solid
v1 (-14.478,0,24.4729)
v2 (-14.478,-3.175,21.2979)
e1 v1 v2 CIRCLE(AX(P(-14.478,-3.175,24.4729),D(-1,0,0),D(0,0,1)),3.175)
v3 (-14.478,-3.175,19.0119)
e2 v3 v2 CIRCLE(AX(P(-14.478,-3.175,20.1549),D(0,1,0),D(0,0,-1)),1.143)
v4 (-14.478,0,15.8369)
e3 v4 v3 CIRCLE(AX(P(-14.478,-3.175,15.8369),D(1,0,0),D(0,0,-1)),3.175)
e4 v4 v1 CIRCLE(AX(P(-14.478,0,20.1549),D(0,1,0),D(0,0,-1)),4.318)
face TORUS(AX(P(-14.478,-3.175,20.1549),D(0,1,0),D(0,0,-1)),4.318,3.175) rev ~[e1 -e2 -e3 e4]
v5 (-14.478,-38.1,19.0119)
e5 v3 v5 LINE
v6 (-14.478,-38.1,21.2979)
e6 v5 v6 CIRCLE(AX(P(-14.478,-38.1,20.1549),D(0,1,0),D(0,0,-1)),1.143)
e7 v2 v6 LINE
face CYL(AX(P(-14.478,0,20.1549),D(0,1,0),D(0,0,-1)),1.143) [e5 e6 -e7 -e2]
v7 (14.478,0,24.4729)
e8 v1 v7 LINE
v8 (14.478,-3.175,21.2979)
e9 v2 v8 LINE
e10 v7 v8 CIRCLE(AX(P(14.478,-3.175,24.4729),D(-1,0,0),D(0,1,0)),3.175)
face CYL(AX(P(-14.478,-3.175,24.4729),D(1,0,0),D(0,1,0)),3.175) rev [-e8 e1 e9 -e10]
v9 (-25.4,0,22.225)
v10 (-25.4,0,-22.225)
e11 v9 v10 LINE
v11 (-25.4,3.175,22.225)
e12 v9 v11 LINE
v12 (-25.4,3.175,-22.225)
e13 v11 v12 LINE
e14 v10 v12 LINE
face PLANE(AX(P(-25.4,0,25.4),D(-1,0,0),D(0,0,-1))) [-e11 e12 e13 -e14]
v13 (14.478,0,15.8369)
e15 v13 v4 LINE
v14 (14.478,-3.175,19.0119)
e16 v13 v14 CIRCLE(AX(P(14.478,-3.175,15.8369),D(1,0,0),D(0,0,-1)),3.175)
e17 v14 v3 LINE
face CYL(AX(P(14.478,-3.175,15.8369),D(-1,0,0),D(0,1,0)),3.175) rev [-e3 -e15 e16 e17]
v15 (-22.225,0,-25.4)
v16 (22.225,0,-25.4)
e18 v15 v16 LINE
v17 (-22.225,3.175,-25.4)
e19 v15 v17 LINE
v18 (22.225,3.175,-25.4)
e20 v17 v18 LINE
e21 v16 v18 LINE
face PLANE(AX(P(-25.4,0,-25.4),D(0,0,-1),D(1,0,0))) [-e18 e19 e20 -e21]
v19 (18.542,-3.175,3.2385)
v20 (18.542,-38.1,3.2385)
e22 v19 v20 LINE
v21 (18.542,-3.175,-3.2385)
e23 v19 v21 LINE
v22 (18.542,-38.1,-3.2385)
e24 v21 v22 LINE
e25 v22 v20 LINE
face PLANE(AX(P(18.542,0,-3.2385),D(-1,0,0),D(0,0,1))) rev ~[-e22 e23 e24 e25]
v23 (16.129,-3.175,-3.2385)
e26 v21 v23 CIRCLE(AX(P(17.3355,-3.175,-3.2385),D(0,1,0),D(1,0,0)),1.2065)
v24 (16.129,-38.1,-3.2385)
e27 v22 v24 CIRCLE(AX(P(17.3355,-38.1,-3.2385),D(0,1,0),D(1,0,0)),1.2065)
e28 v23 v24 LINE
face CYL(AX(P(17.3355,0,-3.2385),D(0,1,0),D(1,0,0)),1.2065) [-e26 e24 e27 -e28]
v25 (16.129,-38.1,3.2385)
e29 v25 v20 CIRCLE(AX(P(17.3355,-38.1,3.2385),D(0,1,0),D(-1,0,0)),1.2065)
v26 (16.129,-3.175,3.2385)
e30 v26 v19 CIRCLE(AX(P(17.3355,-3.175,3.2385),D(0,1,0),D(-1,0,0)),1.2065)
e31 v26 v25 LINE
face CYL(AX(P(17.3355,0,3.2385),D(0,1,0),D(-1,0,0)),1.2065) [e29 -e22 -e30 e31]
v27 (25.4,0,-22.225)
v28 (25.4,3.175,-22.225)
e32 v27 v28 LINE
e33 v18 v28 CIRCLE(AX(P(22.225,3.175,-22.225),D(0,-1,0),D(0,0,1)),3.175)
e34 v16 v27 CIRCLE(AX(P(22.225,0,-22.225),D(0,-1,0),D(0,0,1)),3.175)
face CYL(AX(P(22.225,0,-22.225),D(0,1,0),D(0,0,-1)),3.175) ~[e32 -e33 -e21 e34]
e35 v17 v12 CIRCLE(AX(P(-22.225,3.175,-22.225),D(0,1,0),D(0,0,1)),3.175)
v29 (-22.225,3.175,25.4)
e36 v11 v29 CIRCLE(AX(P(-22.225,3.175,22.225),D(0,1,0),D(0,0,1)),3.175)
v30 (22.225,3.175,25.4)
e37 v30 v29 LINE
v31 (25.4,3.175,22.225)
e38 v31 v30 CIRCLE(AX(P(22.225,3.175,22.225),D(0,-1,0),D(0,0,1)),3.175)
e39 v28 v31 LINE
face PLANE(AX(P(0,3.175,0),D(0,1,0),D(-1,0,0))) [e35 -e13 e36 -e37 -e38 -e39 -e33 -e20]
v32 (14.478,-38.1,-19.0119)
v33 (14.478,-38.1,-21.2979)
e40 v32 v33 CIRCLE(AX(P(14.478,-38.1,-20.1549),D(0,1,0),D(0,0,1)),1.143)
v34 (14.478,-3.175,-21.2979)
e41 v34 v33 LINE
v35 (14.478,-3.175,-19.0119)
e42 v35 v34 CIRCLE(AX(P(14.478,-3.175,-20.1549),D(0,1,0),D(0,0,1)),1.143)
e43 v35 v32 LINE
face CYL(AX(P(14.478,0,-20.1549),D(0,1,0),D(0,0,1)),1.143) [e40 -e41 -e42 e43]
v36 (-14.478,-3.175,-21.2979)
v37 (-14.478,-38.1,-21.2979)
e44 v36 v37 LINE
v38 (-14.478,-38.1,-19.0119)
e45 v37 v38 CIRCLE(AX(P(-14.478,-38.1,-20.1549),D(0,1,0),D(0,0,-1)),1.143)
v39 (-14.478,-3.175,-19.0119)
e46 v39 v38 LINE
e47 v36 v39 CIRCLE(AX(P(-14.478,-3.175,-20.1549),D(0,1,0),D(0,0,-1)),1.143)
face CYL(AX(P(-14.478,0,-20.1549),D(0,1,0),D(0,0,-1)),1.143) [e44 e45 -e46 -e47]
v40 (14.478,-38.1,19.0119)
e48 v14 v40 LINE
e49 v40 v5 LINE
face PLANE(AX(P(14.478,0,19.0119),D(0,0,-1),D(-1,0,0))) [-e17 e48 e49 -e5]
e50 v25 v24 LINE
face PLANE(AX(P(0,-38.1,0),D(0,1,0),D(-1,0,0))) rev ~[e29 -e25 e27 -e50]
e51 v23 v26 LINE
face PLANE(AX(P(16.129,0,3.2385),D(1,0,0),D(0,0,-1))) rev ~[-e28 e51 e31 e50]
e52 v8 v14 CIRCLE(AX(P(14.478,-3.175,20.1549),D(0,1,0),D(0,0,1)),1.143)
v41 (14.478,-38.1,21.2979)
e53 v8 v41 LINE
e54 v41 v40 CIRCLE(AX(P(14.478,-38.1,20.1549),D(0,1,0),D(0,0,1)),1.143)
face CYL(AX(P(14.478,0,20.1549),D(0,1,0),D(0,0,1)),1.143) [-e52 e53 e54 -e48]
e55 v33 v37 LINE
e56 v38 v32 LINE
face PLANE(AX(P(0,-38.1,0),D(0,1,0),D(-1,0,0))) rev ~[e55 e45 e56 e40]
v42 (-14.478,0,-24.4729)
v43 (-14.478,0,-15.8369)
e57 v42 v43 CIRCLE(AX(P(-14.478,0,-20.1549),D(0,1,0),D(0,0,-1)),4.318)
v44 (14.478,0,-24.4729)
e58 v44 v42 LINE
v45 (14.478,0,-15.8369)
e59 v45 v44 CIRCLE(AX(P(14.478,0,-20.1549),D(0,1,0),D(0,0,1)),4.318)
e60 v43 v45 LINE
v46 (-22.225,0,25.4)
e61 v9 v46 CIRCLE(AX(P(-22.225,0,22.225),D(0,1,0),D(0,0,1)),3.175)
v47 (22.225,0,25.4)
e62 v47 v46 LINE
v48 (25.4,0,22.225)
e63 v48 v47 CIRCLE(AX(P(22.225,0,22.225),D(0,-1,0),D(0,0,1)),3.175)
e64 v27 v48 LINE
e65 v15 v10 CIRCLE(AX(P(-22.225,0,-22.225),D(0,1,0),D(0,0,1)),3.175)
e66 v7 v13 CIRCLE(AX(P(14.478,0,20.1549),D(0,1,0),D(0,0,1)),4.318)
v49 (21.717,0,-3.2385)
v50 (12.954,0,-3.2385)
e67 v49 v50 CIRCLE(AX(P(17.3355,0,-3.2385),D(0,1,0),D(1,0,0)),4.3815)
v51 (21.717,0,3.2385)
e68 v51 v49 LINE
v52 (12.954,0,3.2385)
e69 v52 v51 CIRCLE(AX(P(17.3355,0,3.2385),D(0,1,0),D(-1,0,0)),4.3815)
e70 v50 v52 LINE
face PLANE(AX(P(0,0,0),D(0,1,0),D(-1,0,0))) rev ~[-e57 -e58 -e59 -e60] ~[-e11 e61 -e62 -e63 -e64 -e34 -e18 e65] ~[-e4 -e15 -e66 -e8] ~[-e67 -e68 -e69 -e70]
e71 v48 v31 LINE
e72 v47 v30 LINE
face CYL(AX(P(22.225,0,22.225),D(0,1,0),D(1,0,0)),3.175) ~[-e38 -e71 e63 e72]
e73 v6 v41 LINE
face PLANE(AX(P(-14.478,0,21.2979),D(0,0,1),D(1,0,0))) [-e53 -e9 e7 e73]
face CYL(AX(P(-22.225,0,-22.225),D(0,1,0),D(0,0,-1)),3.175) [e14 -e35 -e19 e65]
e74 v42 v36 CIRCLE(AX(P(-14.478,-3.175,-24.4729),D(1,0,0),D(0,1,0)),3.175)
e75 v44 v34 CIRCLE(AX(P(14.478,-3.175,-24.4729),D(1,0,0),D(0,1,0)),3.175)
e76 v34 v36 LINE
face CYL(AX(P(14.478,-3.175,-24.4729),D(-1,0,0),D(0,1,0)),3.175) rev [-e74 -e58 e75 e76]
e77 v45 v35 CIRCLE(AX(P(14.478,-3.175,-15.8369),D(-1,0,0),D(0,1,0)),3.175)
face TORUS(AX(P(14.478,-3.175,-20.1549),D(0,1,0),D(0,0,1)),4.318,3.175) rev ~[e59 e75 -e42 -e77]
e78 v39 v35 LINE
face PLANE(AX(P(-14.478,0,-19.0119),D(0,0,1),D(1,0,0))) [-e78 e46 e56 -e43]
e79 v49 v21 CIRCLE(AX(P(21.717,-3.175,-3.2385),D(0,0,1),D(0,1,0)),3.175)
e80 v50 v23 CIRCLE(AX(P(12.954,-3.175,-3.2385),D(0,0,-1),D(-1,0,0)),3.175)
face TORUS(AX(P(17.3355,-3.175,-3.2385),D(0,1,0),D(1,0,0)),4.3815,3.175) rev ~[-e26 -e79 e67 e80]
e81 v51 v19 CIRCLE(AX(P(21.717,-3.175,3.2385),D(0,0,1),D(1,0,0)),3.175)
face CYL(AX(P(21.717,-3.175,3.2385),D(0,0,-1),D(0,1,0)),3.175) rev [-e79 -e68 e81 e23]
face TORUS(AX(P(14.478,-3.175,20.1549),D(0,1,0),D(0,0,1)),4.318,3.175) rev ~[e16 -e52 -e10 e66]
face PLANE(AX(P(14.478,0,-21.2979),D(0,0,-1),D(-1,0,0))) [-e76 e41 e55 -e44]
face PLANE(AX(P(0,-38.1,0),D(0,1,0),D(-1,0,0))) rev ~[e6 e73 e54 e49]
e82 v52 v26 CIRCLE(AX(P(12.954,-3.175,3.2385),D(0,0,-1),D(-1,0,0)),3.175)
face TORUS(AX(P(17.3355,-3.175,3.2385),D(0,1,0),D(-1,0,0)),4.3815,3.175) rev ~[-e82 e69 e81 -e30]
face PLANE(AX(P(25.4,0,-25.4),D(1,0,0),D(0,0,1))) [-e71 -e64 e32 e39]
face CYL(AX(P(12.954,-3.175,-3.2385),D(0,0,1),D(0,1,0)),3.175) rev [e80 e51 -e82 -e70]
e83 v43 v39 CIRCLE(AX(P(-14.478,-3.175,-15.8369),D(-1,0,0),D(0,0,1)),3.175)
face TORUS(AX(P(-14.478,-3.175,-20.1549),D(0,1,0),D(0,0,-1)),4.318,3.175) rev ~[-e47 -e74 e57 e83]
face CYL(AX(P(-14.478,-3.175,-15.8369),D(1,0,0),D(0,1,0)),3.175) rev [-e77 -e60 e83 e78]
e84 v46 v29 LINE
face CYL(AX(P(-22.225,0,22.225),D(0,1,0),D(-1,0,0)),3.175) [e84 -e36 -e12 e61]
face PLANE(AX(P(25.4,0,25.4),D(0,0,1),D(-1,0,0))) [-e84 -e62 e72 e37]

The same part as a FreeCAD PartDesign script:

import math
import FreeCAD as App
import Part
import Sketcher

V = App.Vector
Q = App.Units.Quantity


def edges_at(feature, points):
    """Names of the edges that pass closest to the given points."""
    edges = feature.Shape.Edges
    near = lambda p: min(range(len(edges)), key=lambda i: edges[i].distToShape(Part.Vertex(*p))[0])
    return sorted({f"Edge{near(p) + 1}" for p in points})


def add_polygon(sketch, points):
    """Adds a closed chain of lines whose ends are joined by coincident constraints."""
    first, n = sketch.GeometryCount, len(points)
    for a, b in zip(points, points[1:] + points[:1]):
        sketch.addGeometry(Part.LineSegment(App.Vector(*a, 0), App.Vector(*b, 0)), False)
    for i in range(n):
        sketch.addConstraint(Sketcher.Constraint("Coincident", first + i, 2, first + (i + 1) % n, 1))

doc = App.newDocument("Part")
params = doc.addObject("Spreadsheet::Sheet", "Params")
for row, (alias, value) in enumerate([
    ("sketch1_width", "2 in"),
    ("pad1_length", "0.125 in"),
    ("sketch2_radius", "0.045 in"),
    ("sketch2_width", "1.14 in"),
    ("sketch2_height", "0.255 in"),
    ("pad2_length", "1.5 in"),
    ("fillet_radius", "0.125 in"),
    ("fillet2_radius", "0.125 in"),
], start=1):
    params.set(f"A{row}", alias)
    params.set(f"B{row}", "=" + value)
    params.setAlias(f"B{row}", alias)

body = doc.addObject("PartDesign::Body", "Body")

sketch1 = body.newObject("Sketcher::SketchObject", "Sketch")
sketch1.AttachmentSupport = (doc.getObject("XZ_Plane"), [""])
sketch1.MapMode = "FlatFace"
add_polygon(sketch1, [(25.4, -25.4), (-25.4, -25.4), (-25.4, 25.4), (25.4, 25.4)])
sketch1.addConstraint(Sketcher.Constraint("Horizontal", 0))
sketch1.addConstraint(Sketcher.Constraint("Vertical", 1))
sketch1.addConstraint(Sketcher.Constraint("Horizontal", 2))
sketch1.addConstraint(Sketcher.Constraint("Vertical", 3))
sketch1.addConstraint(Sketcher.Constraint("Symmetric", 0, 2, 2, 2, -1, 1))
sketch1.addConstraint(Sketcher.Constraint("Equal", 2, 1))
sketch1.addConstraint(Sketcher.Constraint("DistanceX", 0, 2, 0, 1, Q("2 in")))
sketch1.setExpression("Constraints[10]", "Params.sketch1_width")
pad1 = body.newObject("PartDesign::Pad", "Pad")
pad1.Profile = sketch1
pad1.setExpression("Length", "Params.pad1_length")
pad1.Reversed = True

sketch2 = body.newObject("Sketcher::SketchObject", "Sketch001")
sketch2.AttachmentSupport = (doc.getObject("XZ_Plane"), [""])
sketch2.MapMode = "FlatFace"
sketch2.addGeometry(Part.ArcOfCircle(Part.Circle(V(14.478, -20.1549, 0), V(0, 0, 1), 1.143), math.radians(-90), math.radians(90)), False)
sketch2.addGeometry(Part.LineSegment(V(14.478, -21.2979, 0), V(-14.478, -21.2979, 0)), False)
sketch2.addGeometry(Part.ArcOfCircle(Part.Circle(V(-14.478, -20.1549, 0), V(0, 0, 1), 1.143), math.radians(90), math.radians(270)), False)
sketch2.addGeometry(Part.LineSegment(V(-14.478, -19.0119, 0), V(14.478, -19.0119, 0)), False)
sketch2.addGeometry(Part.ArcOfCircle(Part.Circle(V(14.478, 20.1549, 0), V(0, 0, 1), 1.143), math.radians(-90), math.radians(90)), False)
sketch2.addGeometry(Part.LineSegment(V(14.478, 19.0119, 0), V(-14.478, 19.0119, 0)), False)
sketch2.addGeometry(Part.ArcOfCircle(Part.Circle(V(-14.478, 20.1549, 0), V(0, 0, 1), 1.143), math.radians(90), math.radians(270)), False)
sketch2.addGeometry(Part.LineSegment(V(-14.478, 21.2979, 0), V(14.478, 21.2979, 0)), False)
sketch2.addGeometry(Part.LineSegment(V(16.129, -3.2385, 0), V(16.129, 3.2385, 0)), False)
sketch2.addGeometry(Part.ArcOfCircle(Part.Circle(V(17.3355, 3.2385, 0), V(0, 0, 1), 1.2065), math.radians(0), math.radians(180)), False)
sketch2.addGeometry(Part.LineSegment(V(18.542, 3.2385, 0), V(18.542, -3.2385, 0)), False)
sketch2.addGeometry(Part.ArcOfCircle(Part.Circle(V(17.3355, -3.2385, 0), V(0, 0, 1), 1.2065), math.radians(180), math.radians(360)), False)
sketch2.addConstraint(Sketcher.Constraint("Tangent", 0, 1, 1, 1))
sketch2.addConstraint(Sketcher.Constraint("Tangent", 1, 2, 2, 2))
sketch2.addConstraint(Sketcher.Constraint("Tangent", 2, 1, 3, 1))
sketch2.addConstraint(Sketcher.Constraint("Tangent", 3, 2, 0, 2))
sketch2.addConstraint(Sketcher.Constraint("Tangent", 4, 1, 5, 1))
sketch2.addConstraint(Sketcher.Constraint("Tangent", 5, 2, 6, 2))
sketch2.addConstraint(Sketcher.Constraint("Tangent", 6, 1, 7, 1))
sketch2.addConstraint(Sketcher.Constraint("Tangent", 7, 2, 4, 2))
sketch2.addConstraint(Sketcher.Constraint("Tangent", 8, 2, 9, 2))
sketch2.addConstraint(Sketcher.Constraint("Tangent", 9, 1, 10, 1))
sketch2.addConstraint(Sketcher.Constraint("Tangent", 10, 2, 11, 2))
sketch2.addConstraint(Sketcher.Constraint("Tangent", 11, 1, 8, 1))
sketch2.addConstraint(Sketcher.Constraint("Horizontal", 1))
sketch2.addConstraint(Sketcher.Constraint("Horizontal", 3))
sketch2.addConstraint(Sketcher.Constraint("Horizontal", 5))
sketch2.addConstraint(Sketcher.Constraint("Horizontal", 7))
sketch2.addConstraint(Sketcher.Constraint("Vertical", 8))
sketch2.addConstraint(Sketcher.Constraint("Vertical", 10))
sketch2.addConstraint(Sketcher.Constraint("Equal", 2, 4))
sketch2.addConstraint(Sketcher.Constraint("Symmetric", 2, 3, 4, 3, -1, 1))
sketch2.addConstraint(Sketcher.Constraint("Vertical", 0, 3, 4, 3))
sketch2.addConstraint(Sketcher.Constraint("Vertical", 2, 3, 6, 3))
sketch2.addConstraint(Sketcher.Constraint("Radius", 0, Q("0.045 in")))
sketch2.addConstraint(Sketcher.Constraint("DistanceX", 1, 2, 1, 1, Q("1.14 in")))
sketch2.addConstraint(Sketcher.Constraint("Radius", 9, Q("0.0475 in")))
sketch2.addConstraint(Sketcher.Constraint("DistanceY", 8, 1, 8, 2, Q("0.255 in")))
sketch2.addConstraint(Sketcher.Constraint("DistanceX", -1, 1, 9, 1, Q("0.73 in")))
sketch2.addConstraint(Sketcher.Constraint("DistanceY", 0, 3, 4, 3, Q("1.587 in")))
sketch2.addConstraint(Sketcher.Constraint("DistanceY", 9, 3, 4, 3, Q("0.666 in")))
sketch2.setExpression("Constraints[22]", "Params.sketch2_radius")
sketch2.setExpression("Constraints[23]", "Params.sketch2_width")
sketch2.setExpression("Constraints[25]", "Params.sketch2_height")
pad2 = body.newObject("PartDesign::Pad", "Pad001")
pad2.Profile = sketch2
pad2.setExpression("Length", "Params.pad2_length")
doc.recompute()

fillet = body.newObject("PartDesign::Fillet", "Fillet")
fillet.Base = (pad2, edges_at(pad2, [
    (25.4, 1.587, 25.4),
    (-25.4, 1.587, 25.4),
    (25.4, 1.587, -25.4),
    (-25.4, 1.587, -25.4),
]))
fillet.setExpression("Radius", "Params.fillet_radius")
doc.recompute()

fillet2 = body.newObject("PartDesign::Fillet", "Fillet001")
fillet2.Base = (fillet, edges_at(fillet, [
    (0, 0, -21.298),
    (-15.621, 0, -20.155),
    (0, 0, -19.012),
    (15.621, 0, -20.155),
    (17.335, 0, 4.445),
    (18.542, 0, 0),
    (17.335, 0, -4.445),
    (16.129, 0, 0),
    (-15.621, 0, 20.155),
    (0, 0, 21.298),
    (15.621, 0, 20.155),
    (0, 0, 19.012),
]))
fillet2.setExpression("Radius", "Params.fillet2_radius")

doc.recompute()
